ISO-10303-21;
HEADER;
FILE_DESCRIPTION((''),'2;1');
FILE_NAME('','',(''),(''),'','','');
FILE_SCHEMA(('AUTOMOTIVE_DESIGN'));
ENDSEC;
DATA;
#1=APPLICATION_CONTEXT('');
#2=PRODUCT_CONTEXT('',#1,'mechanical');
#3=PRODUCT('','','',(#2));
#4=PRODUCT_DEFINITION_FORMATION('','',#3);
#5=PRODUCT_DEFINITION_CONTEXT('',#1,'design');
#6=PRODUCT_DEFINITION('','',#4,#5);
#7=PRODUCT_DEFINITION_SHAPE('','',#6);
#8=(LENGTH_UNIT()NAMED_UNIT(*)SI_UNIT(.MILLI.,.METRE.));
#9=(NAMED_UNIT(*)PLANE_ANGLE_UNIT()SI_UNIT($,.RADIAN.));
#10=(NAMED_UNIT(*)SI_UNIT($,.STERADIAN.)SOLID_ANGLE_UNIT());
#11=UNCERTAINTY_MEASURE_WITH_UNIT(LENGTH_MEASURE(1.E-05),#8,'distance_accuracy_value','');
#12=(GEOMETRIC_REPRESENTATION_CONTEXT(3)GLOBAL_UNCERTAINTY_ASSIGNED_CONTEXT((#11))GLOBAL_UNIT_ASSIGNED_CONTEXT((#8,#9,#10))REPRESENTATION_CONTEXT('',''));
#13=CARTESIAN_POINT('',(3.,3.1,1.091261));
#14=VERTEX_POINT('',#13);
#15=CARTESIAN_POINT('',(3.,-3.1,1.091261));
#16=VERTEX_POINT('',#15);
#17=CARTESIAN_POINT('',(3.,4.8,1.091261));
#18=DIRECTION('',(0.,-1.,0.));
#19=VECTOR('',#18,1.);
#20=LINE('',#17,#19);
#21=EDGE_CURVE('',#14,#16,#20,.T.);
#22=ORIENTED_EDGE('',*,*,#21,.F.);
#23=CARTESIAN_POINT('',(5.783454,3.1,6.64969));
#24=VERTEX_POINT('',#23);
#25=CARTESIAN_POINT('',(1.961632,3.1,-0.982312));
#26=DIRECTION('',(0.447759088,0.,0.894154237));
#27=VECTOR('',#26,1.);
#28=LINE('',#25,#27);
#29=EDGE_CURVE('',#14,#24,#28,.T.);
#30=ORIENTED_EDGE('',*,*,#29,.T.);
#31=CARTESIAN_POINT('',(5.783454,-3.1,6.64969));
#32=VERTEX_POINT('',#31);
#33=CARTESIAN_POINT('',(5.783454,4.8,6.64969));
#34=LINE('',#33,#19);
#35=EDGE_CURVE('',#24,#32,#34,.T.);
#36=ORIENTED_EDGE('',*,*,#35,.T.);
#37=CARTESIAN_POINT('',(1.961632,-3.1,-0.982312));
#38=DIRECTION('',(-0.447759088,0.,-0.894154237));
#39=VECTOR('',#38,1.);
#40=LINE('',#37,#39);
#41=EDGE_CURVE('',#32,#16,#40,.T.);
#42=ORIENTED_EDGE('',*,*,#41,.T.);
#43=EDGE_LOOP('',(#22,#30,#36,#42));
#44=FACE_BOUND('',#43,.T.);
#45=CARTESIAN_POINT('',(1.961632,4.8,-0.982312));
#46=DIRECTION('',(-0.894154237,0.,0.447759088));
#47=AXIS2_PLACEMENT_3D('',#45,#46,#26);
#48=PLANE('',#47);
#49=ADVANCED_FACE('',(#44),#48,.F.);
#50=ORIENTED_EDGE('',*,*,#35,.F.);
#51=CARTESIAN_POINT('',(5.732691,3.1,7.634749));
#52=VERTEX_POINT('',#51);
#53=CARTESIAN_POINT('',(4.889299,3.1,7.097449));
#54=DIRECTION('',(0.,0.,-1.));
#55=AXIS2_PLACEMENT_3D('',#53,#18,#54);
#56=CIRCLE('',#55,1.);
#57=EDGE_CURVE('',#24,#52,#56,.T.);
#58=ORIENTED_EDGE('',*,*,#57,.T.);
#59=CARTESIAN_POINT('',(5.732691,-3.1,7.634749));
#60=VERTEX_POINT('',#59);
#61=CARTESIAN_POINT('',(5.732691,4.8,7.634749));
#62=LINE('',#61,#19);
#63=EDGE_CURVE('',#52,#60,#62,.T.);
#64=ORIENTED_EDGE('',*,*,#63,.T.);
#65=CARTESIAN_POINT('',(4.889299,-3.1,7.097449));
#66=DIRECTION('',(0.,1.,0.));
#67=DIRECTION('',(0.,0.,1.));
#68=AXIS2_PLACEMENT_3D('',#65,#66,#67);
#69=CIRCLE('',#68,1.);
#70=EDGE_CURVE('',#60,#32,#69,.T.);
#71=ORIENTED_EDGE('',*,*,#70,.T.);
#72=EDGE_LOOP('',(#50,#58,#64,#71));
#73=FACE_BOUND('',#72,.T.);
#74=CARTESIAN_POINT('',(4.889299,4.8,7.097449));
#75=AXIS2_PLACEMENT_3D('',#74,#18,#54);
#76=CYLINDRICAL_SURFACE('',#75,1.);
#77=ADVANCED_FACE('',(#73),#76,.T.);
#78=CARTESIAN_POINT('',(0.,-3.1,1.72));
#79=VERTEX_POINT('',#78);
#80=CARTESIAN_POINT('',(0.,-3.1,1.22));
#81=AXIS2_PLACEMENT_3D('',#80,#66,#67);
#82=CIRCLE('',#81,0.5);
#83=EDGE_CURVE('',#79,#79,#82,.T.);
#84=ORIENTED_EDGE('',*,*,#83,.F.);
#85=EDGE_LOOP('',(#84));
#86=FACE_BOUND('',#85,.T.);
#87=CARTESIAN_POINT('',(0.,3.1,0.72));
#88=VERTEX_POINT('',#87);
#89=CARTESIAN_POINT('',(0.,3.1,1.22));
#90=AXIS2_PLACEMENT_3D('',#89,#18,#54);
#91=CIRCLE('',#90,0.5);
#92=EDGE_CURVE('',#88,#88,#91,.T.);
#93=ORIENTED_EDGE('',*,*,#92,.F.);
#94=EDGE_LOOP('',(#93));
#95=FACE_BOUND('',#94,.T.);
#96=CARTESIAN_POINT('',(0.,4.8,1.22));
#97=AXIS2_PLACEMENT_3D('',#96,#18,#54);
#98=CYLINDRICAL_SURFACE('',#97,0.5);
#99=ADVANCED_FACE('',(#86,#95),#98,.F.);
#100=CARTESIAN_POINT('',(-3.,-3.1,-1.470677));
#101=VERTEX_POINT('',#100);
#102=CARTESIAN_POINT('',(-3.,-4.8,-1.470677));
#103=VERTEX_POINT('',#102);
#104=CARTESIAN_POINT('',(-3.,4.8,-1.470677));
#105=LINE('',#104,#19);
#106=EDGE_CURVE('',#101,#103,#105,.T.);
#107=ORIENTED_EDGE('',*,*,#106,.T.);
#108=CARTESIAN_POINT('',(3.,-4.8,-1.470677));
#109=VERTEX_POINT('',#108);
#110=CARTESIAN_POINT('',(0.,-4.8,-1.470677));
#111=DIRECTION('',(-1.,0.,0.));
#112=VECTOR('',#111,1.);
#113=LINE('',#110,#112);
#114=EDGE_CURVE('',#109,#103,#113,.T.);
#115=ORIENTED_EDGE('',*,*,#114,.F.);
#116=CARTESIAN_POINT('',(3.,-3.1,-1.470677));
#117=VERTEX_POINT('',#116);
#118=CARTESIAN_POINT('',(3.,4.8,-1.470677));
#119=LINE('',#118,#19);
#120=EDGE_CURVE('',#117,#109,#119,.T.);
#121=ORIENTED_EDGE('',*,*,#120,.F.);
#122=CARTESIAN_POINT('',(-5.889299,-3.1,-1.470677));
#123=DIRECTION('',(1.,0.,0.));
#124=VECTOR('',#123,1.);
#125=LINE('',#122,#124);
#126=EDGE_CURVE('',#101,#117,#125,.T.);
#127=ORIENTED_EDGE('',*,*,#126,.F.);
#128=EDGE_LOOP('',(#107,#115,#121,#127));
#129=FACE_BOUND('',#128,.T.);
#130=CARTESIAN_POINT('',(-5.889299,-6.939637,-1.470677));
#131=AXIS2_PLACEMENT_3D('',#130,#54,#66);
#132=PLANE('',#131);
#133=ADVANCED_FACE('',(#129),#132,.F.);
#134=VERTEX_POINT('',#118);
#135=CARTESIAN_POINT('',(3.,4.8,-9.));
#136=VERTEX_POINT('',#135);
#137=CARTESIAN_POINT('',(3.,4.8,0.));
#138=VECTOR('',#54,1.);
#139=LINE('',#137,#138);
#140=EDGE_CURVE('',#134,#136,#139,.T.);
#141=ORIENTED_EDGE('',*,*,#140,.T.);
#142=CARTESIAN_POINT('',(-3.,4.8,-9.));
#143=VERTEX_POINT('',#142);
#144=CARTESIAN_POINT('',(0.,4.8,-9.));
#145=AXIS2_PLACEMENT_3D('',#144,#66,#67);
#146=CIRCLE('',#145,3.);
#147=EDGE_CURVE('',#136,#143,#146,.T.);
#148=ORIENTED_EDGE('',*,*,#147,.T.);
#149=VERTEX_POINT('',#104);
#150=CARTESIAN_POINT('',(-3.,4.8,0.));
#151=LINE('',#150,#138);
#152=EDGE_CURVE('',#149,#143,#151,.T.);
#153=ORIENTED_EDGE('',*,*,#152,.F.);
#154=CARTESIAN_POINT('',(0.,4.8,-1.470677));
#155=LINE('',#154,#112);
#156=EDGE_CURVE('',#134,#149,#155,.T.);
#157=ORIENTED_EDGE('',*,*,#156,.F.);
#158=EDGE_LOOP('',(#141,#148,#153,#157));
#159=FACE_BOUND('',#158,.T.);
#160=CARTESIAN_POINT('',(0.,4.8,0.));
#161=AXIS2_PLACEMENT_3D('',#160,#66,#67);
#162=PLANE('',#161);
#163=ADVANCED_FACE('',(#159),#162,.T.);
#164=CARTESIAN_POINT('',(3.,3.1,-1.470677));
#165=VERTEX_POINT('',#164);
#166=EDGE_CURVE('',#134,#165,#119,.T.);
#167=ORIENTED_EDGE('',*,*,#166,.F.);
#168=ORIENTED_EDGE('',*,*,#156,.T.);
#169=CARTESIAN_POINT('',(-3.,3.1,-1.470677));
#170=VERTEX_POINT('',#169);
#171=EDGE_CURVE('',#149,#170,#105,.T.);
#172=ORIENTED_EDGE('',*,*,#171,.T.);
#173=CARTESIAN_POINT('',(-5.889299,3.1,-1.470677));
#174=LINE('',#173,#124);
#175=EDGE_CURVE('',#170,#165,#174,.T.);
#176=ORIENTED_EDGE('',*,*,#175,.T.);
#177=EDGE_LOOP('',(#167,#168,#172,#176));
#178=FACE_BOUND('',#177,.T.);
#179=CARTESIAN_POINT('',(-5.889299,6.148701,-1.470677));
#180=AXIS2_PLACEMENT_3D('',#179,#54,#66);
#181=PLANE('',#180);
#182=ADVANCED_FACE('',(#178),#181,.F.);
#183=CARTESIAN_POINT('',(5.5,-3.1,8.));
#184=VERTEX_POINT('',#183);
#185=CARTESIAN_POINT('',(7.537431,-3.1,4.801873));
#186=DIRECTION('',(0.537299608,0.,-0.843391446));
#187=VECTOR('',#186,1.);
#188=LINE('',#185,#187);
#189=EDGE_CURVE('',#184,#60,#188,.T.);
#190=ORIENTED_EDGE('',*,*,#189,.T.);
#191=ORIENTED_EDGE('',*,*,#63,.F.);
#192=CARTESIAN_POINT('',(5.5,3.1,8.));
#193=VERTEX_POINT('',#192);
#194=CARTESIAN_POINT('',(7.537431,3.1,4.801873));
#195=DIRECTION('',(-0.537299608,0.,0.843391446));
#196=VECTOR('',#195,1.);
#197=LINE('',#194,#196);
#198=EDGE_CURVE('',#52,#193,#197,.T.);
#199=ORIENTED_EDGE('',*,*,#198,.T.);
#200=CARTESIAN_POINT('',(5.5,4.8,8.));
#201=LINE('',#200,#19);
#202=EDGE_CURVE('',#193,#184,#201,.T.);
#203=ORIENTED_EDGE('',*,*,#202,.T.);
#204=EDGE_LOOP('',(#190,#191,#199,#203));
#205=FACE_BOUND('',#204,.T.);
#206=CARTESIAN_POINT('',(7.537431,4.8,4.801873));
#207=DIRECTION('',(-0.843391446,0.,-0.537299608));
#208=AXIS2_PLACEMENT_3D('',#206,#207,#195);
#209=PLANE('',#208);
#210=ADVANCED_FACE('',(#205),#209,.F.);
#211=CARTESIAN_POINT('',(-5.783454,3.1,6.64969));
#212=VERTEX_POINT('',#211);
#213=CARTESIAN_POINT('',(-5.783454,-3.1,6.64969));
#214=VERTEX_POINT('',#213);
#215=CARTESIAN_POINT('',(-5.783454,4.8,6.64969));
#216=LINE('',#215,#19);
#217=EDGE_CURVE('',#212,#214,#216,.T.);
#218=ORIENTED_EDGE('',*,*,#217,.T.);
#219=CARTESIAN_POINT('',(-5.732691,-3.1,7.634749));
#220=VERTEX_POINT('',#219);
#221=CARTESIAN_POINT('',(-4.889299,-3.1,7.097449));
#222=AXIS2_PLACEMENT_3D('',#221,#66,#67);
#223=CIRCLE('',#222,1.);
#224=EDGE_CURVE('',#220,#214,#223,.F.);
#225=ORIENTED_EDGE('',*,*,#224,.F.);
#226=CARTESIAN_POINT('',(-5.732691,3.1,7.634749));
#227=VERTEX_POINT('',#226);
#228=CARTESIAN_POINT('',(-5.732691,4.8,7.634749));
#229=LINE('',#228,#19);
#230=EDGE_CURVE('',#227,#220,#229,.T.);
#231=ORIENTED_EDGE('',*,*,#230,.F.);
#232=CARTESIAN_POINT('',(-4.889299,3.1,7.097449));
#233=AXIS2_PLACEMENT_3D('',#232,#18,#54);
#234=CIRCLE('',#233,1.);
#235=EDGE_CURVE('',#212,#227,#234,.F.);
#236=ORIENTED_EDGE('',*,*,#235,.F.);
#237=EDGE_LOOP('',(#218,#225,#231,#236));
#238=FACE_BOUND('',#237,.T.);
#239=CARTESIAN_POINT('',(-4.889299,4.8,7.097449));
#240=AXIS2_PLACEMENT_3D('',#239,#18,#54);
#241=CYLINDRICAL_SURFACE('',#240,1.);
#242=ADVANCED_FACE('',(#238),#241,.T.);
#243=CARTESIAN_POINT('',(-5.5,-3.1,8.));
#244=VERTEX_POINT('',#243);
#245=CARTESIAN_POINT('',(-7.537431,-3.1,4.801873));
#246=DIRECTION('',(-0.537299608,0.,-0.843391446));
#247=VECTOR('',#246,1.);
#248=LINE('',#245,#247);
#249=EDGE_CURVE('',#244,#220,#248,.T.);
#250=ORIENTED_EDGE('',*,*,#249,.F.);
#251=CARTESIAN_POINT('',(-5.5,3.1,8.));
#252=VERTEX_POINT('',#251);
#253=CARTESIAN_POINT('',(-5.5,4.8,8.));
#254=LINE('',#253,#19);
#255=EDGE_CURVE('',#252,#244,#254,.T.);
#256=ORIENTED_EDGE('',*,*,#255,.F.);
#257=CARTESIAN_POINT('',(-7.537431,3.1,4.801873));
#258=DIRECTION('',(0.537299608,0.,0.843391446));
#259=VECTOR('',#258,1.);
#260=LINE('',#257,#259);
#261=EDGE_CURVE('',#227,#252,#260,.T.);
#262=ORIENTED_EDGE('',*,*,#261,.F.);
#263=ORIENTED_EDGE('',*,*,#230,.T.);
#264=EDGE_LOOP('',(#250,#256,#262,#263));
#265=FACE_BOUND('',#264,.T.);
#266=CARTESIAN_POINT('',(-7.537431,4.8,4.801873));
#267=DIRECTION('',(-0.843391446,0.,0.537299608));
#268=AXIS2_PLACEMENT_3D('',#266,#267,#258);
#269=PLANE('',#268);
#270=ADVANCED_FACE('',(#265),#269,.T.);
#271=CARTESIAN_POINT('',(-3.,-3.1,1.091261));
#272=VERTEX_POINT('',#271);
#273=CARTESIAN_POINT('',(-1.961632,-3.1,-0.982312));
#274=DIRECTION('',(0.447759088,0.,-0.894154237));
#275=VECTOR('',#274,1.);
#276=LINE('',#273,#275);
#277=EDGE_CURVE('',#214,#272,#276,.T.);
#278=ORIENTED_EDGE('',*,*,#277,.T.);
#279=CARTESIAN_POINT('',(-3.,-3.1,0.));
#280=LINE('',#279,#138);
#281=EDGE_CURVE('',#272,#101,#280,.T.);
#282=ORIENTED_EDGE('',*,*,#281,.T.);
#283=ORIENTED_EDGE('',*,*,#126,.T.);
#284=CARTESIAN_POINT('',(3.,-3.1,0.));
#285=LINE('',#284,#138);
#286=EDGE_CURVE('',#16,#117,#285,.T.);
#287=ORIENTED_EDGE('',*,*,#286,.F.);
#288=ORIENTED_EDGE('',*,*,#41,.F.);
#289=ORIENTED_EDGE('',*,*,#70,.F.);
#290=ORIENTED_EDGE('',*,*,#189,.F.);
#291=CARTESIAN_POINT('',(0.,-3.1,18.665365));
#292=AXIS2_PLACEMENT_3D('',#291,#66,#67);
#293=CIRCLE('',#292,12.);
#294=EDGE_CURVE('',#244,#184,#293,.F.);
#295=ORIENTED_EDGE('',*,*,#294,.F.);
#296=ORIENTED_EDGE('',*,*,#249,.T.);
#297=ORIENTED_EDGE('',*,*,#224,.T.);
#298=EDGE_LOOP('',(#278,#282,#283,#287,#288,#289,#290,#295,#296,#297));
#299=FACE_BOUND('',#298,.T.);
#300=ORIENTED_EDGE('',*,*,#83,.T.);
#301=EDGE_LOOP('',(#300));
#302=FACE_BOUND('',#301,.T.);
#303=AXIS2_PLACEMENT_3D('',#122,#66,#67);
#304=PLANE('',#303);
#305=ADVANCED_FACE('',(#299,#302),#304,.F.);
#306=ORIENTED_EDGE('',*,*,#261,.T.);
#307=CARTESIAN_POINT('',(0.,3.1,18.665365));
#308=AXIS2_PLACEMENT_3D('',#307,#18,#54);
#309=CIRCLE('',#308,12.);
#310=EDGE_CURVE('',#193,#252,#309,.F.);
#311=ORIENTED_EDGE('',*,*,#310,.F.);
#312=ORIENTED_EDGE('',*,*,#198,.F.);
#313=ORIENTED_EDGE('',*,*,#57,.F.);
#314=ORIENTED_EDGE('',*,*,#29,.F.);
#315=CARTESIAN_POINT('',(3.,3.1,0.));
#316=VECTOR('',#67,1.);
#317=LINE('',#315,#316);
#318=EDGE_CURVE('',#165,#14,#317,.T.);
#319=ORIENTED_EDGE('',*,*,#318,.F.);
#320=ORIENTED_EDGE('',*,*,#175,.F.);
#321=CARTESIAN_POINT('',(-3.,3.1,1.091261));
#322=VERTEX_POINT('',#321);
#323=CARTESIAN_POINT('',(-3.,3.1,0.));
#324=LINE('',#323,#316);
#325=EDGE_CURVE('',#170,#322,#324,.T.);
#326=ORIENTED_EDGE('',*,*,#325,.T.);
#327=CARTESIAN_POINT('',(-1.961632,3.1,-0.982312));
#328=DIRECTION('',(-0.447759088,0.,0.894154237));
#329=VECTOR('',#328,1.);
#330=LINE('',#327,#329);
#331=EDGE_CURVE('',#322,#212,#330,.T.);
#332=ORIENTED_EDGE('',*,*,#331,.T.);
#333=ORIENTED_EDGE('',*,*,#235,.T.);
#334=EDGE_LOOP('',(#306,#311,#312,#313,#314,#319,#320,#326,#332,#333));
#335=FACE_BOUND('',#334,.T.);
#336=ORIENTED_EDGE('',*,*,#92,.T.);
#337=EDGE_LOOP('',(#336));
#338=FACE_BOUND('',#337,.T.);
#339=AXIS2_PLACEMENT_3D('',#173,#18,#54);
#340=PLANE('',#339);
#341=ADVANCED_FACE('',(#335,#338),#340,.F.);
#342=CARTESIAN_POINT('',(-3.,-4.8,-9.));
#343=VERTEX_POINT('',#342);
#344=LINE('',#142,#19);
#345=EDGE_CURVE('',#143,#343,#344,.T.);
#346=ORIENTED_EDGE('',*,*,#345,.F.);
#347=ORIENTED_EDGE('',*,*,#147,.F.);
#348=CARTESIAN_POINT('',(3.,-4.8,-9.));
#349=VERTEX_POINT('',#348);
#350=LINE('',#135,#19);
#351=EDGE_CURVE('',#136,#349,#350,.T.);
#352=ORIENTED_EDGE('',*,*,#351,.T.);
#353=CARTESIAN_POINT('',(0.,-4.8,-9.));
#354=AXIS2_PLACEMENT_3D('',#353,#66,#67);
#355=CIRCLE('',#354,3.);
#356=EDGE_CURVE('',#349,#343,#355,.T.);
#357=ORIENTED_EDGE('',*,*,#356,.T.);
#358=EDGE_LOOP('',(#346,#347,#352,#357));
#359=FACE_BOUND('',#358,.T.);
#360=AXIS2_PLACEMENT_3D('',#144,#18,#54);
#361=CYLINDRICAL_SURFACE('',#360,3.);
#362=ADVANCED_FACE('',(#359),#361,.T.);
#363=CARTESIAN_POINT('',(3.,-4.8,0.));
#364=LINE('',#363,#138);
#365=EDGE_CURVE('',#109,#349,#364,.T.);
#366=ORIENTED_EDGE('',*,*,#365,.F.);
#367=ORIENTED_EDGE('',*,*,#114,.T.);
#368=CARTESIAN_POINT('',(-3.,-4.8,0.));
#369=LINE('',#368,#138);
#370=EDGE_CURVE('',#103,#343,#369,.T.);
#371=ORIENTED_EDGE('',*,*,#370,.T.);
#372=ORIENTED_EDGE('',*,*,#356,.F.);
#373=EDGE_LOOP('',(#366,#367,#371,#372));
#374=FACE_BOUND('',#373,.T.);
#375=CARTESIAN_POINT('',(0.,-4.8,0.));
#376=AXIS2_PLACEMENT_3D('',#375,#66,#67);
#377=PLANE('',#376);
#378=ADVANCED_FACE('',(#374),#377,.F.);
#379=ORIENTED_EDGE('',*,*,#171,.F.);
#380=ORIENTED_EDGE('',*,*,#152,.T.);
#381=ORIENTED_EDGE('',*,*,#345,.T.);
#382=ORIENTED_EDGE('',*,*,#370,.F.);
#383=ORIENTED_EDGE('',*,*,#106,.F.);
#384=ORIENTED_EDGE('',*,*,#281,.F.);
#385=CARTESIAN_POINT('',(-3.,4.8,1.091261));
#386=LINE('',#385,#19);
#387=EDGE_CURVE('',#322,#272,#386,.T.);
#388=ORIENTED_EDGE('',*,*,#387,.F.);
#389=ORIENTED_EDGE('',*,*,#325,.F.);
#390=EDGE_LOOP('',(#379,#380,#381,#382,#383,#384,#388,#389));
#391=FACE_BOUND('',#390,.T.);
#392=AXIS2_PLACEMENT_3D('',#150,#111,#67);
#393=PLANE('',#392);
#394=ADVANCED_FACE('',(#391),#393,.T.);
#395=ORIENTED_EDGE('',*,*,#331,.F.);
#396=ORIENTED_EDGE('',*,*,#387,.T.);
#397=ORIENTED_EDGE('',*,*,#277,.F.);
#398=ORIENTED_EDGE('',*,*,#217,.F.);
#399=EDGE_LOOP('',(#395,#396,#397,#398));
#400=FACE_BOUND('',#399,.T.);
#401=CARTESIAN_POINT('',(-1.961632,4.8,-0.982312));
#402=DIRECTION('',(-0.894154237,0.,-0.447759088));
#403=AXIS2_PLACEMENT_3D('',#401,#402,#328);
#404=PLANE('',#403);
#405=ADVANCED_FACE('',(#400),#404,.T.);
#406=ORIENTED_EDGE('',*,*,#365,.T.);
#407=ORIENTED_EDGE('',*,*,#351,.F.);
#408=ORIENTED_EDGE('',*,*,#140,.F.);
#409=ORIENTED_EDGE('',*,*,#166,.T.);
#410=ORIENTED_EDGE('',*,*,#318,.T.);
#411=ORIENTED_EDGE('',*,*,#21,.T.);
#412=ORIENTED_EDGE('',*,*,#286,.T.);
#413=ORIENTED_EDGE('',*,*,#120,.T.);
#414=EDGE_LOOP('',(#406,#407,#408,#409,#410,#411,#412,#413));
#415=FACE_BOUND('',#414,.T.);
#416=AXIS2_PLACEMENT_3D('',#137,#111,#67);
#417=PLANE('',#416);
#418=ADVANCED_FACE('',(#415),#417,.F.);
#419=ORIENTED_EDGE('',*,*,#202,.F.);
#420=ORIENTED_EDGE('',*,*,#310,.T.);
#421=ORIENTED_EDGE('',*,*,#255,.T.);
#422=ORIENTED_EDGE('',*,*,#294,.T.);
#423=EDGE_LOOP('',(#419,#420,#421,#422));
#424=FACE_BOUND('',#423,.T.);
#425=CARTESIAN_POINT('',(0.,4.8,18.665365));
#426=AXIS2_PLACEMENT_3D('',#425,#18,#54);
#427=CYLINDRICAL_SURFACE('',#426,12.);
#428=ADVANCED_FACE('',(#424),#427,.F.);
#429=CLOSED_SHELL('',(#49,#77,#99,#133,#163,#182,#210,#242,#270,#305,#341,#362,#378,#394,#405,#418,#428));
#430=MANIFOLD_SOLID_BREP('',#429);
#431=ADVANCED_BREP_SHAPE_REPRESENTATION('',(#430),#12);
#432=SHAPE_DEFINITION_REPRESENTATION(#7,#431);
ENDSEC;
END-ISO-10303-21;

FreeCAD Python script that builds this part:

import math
import FreeCAD as App
import Part
import Sketcher
Q = App.Units.Quantity


def add_polygon(sketch, points):
    """Adds a closed chain of lines whose ends are joined by coincident constraints."""
    first, n = sketch.GeometryCount, len(points)
    for a, b in zip(points, points[1:] + points[:1]):
        sketch.addGeometry(Part.LineSegment(App.Vector(*a, 0), App.Vector(*b, 0)), False)
    for i in range(n):
        sketch.addConstraint(Sketcher.Constraint("Coincident", first + i, 2, first + (i + 1) % n, 1))

doc = App.newDocument("Part")
body = doc.addObject("PartDesign::Body", "Body")

sketch1 = body.newObject("Sketcher::SketchObject", "Sketch")
sketch1.AttachmentSupport = (doc.getObject("XZ_Plane"), [""])
sketch1.MapMode = "FlatFace"
sketch1.addGeometry(Part.LineSegment(App.Vector(-3, -9, 0), App.Vector(-3, 1.09, 0)), False)
sketch1.addGeometry(Part.LineSegment(App.Vector(-3, 1.09, 0), App.Vector(-5.78, 6.65, 0)), False)
sketch1.addGeometry(Part.ArcOfCircle(Part.Circle(App.Vector(-4.89, 7.1, 0), App.Vector(0, 0, 1), 1), math.radians(147), math.radians(207)), False)
sketch1.addGeometry(Part.LineSegment(App.Vector(-5.73, 7.63, 0), App.Vector(-5.5, 8, 0)), False)
sketch1.addGeometry(Part.ArcOfCircle(Part.Circle(App.Vector(0, 18.67, 0), App.Vector(0, 0, 1), 12), math.radians(-117), math.radians(-63)), False)
sketch1.addGeometry(Part.LineSegment(App.Vector(5.5, 8, 0), App.Vector(5.73, 7.63, 0)), False)
sketch1.addGeometry(Part.ArcOfCircle(Part.Circle(App.Vector(4.89, 7.1, 0), App.Vector(0, 0, 1), 1), math.radians(-27), math.radians(33)), False)
sketch1.addGeometry(Part.LineSegment(App.Vector(5.78, 6.65, 0), App.Vector(3, 1.09, 0)), False)
sketch1.addGeometry(Part.LineSegment(App.Vector(3, 1.09, 0), App.Vector(3, -9, 0)), False)
sketch1.addGeometry(Part.ArcOfCircle(Part.Circle(App.Vector(0, -9, 0), App.Vector(0, 0, 1), 3), math.radians(180), math.radians(360)), False)
sketch1.addGeometry(Part.Circle(App.Vector(0, 1.22, 0), App.Vector(0, 0, 1), 0.5), False)
sketch1.addConstraint(Sketcher.Constraint("Coincident", 0, 2, 1, 1))
sketch1.addConstraint(Sketcher.Constraint("Tangent", 1, 2, 2, 2))
sketch1.addConstraint(Sketcher.Constraint("Tangent", 2, 1, 3, 1))
sketch1.addConstraint(Sketcher.Constraint("Coincident", 3, 2, 4, 1))
sketch1.addConstraint(Sketcher.Constraint("Coincident", 4, 2, 5, 1))
sketch1.addConstraint(Sketcher.Constraint("Tangent", 5, 2, 6, 2))
sketch1.addConstraint(Sketcher.Constraint("Tangent", 6, 1, 7, 1))
sketch1.addConstraint(Sketcher.Constraint("Coincident", 7, 2, 8, 1))
sketch1.addConstraint(Sketcher.Constraint("Tangent", 8, 2, 9, 2))
sketch1.addConstraint(Sketcher.Constraint("Tangent", 9, 1, 0, 1))
sketch1.addConstraint(Sketcher.Constraint("Vertical", 0))
sketch1.addConstraint(Sketcher.Constraint("Vertical", 8))
sketch1.addConstraint(Sketcher.Constraint("Equal", 2, 6))
sketch1.addConstraint(Sketcher.Constraint("Symmetric", 2, 3, 6, 3, -2))
sketch1.addConstraint(Sketcher.Constraint("Symmetric", 3, 2, 4, 2, -2))
sketch1.addConstraint(Sketcher.Constraint("Symmetric", 0, 2, 7, 2, -2))
sketch1.addConstraint(Sketcher.Constraint("PointOnObject", 10, 3, -2))
sketch1.addConstraint(Sketcher.Constraint("Diameter", 10, Q("1 mm")))
sketch1.addConstraint(Sketcher.Constraint("Radius", 2, Q("1 mm")))
sketch1.addConstraint(Sketcher.Constraint("Radius", 4, Q("12 mm")))
sketch1.addConstraint(Sketcher.Constraint("Radius", 9, Q("3 mm")))
sketch1.addConstraint(Sketcher.Constraint("DistanceY", 9, 3, -1, 1, Q("9 mm")))
sketch1.addConstraint(Sketcher.Constraint("DistanceY", -1, 1, 3, 2, Q("8 mm")))
sketch1.addConstraint(Sketcher.Constraint("Angle", 1, Q("116.6 deg")))
sketch1.addConstraint(Sketcher.Constraint("Angle", 3, Q("57.5 deg")))
sketch1.addConstraint(Sketcher.Constraint("DistanceX", 3, 2, 4, 2, Q("11 mm")))
sketch1.addConstraint(Sketcher.Constraint("DistanceY", -1, 1, 10, 3, Q("1.22 mm")))
sketch1.addConstraint(Sketcher.Constraint("DistanceY", 0, 1, 0, 2, Q("10.091261 mm")))
pad1 = body.newObject("PartDesign::Pad", "Pad")
pad1.Profile = sketch1
pad1.Length = 9.6
pad1.Midplane = True

sketch2 = body.newObject("Sketcher::SketchObject", "Sketch001")
sketch2.AttachmentSupport = (doc.getObject("YZ_Plane"), [""])
sketch2.MapMode = "FlatFace"
add_polygon(sketch2, [(6.1, 10.2), (3.1, 10.2), (3.1, -1.5), (6.1, -1.5)])
add_polygon(sketch2, [(-3.1, 9.8), (-6.9, 9.8), (-6.9, -1.5), (-3.1, -1.5)])
sketch2.addConstraint(Sketcher.Constraint("Horizontal", 0))
sketch2.addConstraint(Sketcher.Constraint("Vertical", 1))
sketch2.addConstraint(Sketcher.Constraint("Horizontal", 2))
sketch2.addConstraint(Sketcher.Constraint("Vertical", 3))
sketch2.addConstraint(Sketcher.Constraint("Horizontal", 4))
sketch2.addConstraint(Sketcher.Constraint("Vertical", 5))
sketch2.addConstraint(Sketcher.Constraint("Horizontal", 6))
sketch2.addConstraint(Sketcher.Constraint("Vertical", 7))
sketch2.addConstraint(Sketcher.Constraint("Symmetric", 1, 2, 6, 2, -2))
sketch2.addConstraint(Sketcher.Constraint("DistanceX", -1, 1, 0, 2, Q("3.1 mm")))
sketch2.addConstraint(Sketcher.Constraint("DistanceX", 0, 2, 0, 1, Q("3.048701 mm")))
sketch2.addConstraint(Sketcher.Constraint("DistanceY", 1, 2, 1, 1, Q("11.720241 mm")))
sketch2.addConstraint(Sketcher.Constraint("DistanceY", 5, 2, 5, 1, Q("11.288821 mm")))
sketch2.addConstraint(Sketcher.Constraint("DistanceX", 4, 2, 4, 1, Q("3.839637 mm")))
sketch2.addConstraint(Sketcher.Constraint("DistanceY", -1, 1, 0, 2, Q("10.249564 mm")))
pocket1 = body.newObject("PartDesign::Pocket", "Pocket")
pocket1.Profile = sketch2
pocket1.Type = "ThroughAll"
pocket1.Midplane = True

doc.recompute()
